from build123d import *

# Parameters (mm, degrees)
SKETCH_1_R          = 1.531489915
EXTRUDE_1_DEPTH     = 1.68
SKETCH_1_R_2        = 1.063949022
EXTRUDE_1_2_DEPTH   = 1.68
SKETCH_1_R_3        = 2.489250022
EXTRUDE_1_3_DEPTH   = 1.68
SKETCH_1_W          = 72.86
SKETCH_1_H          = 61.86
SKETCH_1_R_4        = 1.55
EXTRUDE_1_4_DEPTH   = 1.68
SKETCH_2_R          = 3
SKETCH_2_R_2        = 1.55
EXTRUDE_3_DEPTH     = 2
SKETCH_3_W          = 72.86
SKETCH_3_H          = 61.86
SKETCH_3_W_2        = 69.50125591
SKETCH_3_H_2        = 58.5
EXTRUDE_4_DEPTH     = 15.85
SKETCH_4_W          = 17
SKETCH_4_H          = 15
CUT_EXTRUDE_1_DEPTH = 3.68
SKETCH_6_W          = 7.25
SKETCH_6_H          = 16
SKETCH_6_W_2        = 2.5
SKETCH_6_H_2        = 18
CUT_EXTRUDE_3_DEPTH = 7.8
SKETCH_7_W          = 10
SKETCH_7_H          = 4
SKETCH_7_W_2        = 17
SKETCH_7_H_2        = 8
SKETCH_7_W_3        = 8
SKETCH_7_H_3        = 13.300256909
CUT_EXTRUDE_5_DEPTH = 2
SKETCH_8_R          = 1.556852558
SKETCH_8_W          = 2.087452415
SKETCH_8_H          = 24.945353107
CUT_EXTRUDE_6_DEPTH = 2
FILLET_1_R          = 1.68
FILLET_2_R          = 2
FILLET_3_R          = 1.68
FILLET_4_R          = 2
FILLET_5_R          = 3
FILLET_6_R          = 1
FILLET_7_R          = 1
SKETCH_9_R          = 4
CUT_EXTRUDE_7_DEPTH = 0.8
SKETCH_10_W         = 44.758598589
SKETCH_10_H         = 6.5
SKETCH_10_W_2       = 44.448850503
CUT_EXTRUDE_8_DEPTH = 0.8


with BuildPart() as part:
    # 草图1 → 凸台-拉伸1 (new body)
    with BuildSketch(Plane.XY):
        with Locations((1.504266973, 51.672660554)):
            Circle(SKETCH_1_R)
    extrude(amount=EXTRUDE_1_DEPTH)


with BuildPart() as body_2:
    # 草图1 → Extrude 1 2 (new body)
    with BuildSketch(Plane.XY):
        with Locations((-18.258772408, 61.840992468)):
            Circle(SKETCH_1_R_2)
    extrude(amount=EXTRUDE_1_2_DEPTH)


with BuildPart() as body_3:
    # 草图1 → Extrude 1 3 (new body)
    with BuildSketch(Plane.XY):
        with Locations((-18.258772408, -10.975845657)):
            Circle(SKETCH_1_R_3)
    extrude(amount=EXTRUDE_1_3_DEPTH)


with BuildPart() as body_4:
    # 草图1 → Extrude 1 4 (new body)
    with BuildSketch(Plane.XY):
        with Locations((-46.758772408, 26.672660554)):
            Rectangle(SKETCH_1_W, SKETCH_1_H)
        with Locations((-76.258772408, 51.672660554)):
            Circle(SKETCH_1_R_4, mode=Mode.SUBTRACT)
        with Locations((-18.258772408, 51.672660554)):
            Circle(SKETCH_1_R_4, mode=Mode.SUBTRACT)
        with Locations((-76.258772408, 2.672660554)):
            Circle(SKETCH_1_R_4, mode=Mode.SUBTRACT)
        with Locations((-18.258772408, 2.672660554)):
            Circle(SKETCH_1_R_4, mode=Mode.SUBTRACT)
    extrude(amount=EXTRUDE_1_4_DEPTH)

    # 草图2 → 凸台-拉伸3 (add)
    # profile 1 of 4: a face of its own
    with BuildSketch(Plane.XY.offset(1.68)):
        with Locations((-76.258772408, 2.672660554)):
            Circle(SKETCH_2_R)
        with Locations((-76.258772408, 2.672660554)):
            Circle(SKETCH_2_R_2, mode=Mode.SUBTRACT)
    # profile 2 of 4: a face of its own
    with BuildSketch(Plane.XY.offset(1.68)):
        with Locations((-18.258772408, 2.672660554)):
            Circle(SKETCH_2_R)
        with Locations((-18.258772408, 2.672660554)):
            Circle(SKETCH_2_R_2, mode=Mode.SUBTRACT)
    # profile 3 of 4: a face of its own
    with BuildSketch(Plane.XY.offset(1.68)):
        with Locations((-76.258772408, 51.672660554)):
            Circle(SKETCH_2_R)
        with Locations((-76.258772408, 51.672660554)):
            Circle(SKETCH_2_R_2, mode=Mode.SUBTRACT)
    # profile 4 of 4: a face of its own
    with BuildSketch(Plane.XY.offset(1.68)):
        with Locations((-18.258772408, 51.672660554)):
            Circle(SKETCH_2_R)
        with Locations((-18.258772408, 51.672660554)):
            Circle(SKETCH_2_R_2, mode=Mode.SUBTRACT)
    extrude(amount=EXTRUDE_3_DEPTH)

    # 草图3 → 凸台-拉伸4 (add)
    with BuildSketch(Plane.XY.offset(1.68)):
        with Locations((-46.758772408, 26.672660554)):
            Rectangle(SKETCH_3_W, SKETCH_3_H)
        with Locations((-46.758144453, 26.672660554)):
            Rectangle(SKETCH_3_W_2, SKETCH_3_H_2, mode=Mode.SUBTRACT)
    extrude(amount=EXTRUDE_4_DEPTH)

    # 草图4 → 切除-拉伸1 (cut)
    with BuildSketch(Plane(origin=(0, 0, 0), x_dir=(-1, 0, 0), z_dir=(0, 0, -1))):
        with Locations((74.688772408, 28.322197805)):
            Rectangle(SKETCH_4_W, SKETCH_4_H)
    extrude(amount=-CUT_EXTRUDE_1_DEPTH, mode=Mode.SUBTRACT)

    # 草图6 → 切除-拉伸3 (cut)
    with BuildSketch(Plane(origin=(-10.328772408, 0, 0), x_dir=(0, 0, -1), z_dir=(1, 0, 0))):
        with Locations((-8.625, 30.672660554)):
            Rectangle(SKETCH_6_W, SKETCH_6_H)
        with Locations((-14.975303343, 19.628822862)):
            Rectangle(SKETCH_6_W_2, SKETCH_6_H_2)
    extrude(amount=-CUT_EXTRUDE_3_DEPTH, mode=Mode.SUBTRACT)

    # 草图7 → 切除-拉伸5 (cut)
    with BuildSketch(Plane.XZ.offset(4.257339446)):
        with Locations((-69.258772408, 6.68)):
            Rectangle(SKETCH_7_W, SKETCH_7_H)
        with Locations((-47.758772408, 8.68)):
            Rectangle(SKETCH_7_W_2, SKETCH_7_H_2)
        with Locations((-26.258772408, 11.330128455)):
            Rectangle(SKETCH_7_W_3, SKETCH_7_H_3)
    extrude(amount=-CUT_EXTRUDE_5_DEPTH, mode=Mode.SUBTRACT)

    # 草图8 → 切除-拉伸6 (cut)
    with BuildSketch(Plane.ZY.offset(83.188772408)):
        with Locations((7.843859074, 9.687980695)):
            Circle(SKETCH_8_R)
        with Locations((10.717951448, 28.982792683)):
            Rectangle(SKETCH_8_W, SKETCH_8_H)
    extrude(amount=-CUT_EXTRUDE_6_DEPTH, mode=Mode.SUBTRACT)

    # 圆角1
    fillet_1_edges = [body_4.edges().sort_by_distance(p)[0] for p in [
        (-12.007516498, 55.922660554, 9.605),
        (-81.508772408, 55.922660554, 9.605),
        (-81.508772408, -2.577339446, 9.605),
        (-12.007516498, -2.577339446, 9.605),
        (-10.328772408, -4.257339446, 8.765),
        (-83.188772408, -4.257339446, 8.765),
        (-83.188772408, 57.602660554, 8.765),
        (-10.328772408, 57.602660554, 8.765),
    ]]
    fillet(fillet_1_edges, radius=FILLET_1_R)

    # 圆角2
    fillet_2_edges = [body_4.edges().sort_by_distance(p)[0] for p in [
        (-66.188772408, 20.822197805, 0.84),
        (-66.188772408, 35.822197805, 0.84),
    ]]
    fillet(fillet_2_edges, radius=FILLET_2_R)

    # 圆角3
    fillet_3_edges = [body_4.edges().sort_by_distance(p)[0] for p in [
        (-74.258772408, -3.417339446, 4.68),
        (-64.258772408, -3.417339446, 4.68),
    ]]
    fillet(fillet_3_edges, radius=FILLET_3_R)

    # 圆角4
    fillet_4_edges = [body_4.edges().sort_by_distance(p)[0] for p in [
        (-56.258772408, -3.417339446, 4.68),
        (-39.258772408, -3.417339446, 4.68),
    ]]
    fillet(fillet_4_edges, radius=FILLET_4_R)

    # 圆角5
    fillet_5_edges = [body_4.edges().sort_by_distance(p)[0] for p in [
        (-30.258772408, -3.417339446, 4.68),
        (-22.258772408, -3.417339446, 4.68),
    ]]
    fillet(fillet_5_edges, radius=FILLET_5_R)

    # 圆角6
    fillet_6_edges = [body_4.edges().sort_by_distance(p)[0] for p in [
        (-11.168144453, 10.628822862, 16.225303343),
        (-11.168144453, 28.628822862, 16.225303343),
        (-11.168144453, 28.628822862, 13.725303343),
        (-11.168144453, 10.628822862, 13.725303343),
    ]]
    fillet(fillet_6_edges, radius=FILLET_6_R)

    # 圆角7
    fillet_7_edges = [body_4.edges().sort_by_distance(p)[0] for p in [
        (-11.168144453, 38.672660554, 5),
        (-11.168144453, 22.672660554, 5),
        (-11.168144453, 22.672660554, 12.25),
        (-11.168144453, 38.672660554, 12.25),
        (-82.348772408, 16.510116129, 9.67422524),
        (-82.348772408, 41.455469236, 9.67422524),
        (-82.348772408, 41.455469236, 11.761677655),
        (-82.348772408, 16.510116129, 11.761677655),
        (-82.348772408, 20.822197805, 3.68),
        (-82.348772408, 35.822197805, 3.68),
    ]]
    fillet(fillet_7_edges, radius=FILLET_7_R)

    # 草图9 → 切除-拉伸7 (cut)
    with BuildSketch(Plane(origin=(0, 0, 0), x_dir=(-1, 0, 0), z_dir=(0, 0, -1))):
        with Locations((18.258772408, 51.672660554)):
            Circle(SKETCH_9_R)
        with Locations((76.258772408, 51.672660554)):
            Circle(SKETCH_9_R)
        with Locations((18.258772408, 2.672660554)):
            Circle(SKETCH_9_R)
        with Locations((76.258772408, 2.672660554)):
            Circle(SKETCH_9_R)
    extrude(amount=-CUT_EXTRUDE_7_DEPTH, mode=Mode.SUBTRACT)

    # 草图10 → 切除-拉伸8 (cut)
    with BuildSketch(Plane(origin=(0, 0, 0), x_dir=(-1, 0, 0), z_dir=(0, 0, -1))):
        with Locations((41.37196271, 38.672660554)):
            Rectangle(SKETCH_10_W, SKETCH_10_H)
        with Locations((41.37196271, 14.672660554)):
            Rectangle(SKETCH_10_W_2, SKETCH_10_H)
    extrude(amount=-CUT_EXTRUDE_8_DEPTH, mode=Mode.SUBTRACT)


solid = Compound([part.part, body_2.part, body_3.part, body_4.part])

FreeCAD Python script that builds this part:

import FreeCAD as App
import Part
import Sketcher
from FreeCAD import Vector
Q = App.Units.Quantity


def edges_at(feature, points):
    """Names of the edges that pass closest to the given points."""
    edges = feature.Shape.Edges
    near = lambda p: min(range(len(edges)), key=lambda i: edges[i].distToShape(Part.Vertex(*p))[0])
    return sorted({f"Edge{near(p) + 1}" for p in points})

doc = App.newDocument("Part")
body = doc.addObject("PartDesign::Body", "Body")

sketch1 = body.newObject("Sketcher::SketchObject", "Sketch")
sketch1.AttachmentSupport = (doc.getObject("XY_Plane"), [""])
sketch1.MapMode = "FlatFace"
sketch1.addGeometry(Part.Circle(Vector(1.504267, 51.672661, 0), Vector(0, 0, 1), 1.53149), False)
sketch1.addConstraint([
    Sketcher.Constraint("Diameter", 0, Q("3.06298 mm")),
    Sketcher.Constraint("DistanceY", -1, 1, 0, 3, Q("51.672661 mm")),
    Sketcher.Constraint("DistanceX", -1, 1, 0, 3, Q("1.504267 mm")),
])
pad1 = body.newObject("PartDesign::Pad", "Pad")
pad1.Profile = sketch1
pad1.Length = 1.68
body2 = doc.addObject("PartDesign::Body", "Body001")

sketch2 = body2.newObject("Sketcher::SketchObject", "Sketch001")
sketch2.AttachmentSupport = (doc.getObject("XY_Plane001"), [""])
sketch2.MapMode = "FlatFace"
sketch2.addGeometry(Part.Circle(Vector(-18.258772, 61.840992, 0), Vector(0, 0, 1), 1.063949), False)
sketch2.addConstraint([
    Sketcher.Constraint("Diameter", 0, Q("2.127898 mm")),
    Sketcher.Constraint("DistanceX", 0, 3, -1, 1, Q("18.258772 mm")),
    Sketcher.Constraint("DistanceY", -1, 1, 0, 3, Q("61.840992 mm")),
])
pad2 = body2.newObject("PartDesign::Pad", "Pad001")
pad2.Profile = sketch2
pad2.Length = 1.68
body3 = doc.addObject("PartDesign::Body", "Body002")

sketch3 = body3.newObject("Sketcher::SketchObject", "Sketch002")
sketch3.AttachmentSupport = (doc.getObject("XY_Plane002"), [""])
sketch3.MapMode = "FlatFace"
sketch3.addGeometry(Part.Circle(Vector(-18.258772, -10.975846, 0), Vector(0, 0, 1), 2.48925), False)
sketch3.addConstraint([
    Sketcher.Constraint("Diameter", 0, Q("4.9785 mm")),
    Sketcher.Constraint("DistanceX", 0, 3, -1, 1, Q("18.258772 mm")),
    Sketcher.Constraint("DistanceY", 0, 3, -1, 1, Q("10.975846 mm")),
])
pad3 = body3.newObject("PartDesign::Pad", "Pad002")
pad3.Profile = sketch3
pad3.Length = 1.68
body4 = doc.addObject("PartDesign::Body", "Body003")

sketch4 = body4.newObject("Sketcher::SketchObject", "Sketch003")
sketch4.AttachmentSupport = (doc.getObject("XY_Plane003"), [""])
sketch4.MapMode = "FlatFace"
sketch4.addGeometry([
    Part.LineSegment(Vector(-83.188772, 57.602661, 0), Vector(-83.188772, -4.257339, 0)),
    Part.LineSegment(Vector(-83.188772, -4.257339, 0), Vector(-10.328772, -4.257339, 0)),
    Part.LineSegment(Vector(-10.328772, -4.257339, 0), Vector(-10.328772, 57.602661, 0)),
    Part.LineSegment(Vector(-10.328772, 57.602661, 0), Vector(-83.188772, 57.602661, 0)),
    Part.Circle(Vector(-76.258772, 2.672661, 0), Vector(0, 0, 1), 1.55),
    Part.Circle(Vector(-18.258772, 2.672661, 0), Vector(0, 0, 1), 1.55),
    Part.Circle(Vector(-76.258772, 51.672661, 0), Vector(0, 0, 1), 1.55),
    Part.Circle(Vector(-18.258772, 51.672661, 0), Vector(0, 0, 1), 1.55),
], False)
sketch4.addConstraint([
    Sketcher.Constraint("Coincident", 0, 2, 1, 1),
    Sketcher.Constraint("Coincident", 1, 2, 2, 1),
    Sketcher.Constraint("Coincident", 2, 2, 3, 1),
    Sketcher.Constraint("Coincident", 3, 2, 0, 1),
    Sketcher.Constraint("Vertical", 0),
    Sketcher.Constraint("Horizontal", 1),
    Sketcher.Constraint("Vertical", 2),
    Sketcher.Constraint("Horizontal", 3),
    Sketcher.Constraint("Equal", 4, 5),
    Sketcher.Constraint("Equal", 5, 6),
    Sketcher.Constraint("Equal", 6, 7),
    Sketcher.Constraint("Horizontal", 4, 3, 5, 3),
    Sketcher.Constraint("Horizontal", 6, 3, 7, 3),
    Sketcher.Constraint("Vertical", 4, 3, 6, 3),
    Sketcher.Constraint("Vertical", 5, 3, 7, 3),
    Sketcher.Constraint("Diameter", 4, Q("3.1 mm")),
    Sketcher.Constraint("DistanceX", 4, 3, 5, 3, Q("58 mm")),
    Sketcher.Constraint("DistanceY", 4, 3, 6, 3, Q("49 mm")),
    Sketcher.Constraint("DistanceX", 1, 1, 1, 2, Q("72.86 mm")),
    Sketcher.Constraint("DistanceY", 0, 2, 0, 1, Q("61.86 mm")),
    Sketcher.Constraint("DistanceX", 0, 2, 4, 3, Q("6.93 mm")),
    Sketcher.Constraint("DistanceY", 0, 2, 4, 3, Q("6.93 mm")),
    Sketcher.Constraint("DistanceY", -1, 1, 4, 3, Q("2.672661 mm")),
    Sketcher.Constraint("DistanceX", 4, 3, -1, 1, Q("76.258772 mm")),
])
pad4 = body4.newObject("PartDesign::Pad", "Pad003")
pad4.Profile = sketch4
pad4.Length = 1.68

sketch5 = body4.newObject("Sketcher::SketchObject", "Sketch004")
sketch5.AttachmentSupport = (doc.getObject("XY_Plane003"), [""])
sketch5.MapMode = "FlatFace"
sketch5.AttachmentOffset = App.Placement(Vector(0, 0, 1.68), App.Rotation())
sketch5.addGeometry([
    Part.Circle(Vector(-76.258772, 2.672661, 0), Vector(0, 0, 1), 3),
    Part.Circle(Vector(-76.258772, 2.672661, 0), Vector(0, 0, 1), 1.55),
    Part.Circle(Vector(-18.258772, 2.672661, 0), Vector(0, 0, 1), 3),
    Part.Circle(Vector(-18.258772, 2.672661, 0), Vector(0, 0, 1), 1.55),
    Part.Circle(Vector(-76.258772, 51.672661, 0), Vector(0, 0, 1), 3),
    Part.Circle(Vector(-76.258772, 51.672661, 0), Vector(0, 0, 1), 1.55),
    Part.Circle(Vector(-18.258772, 51.672661, 0), Vector(0, 0, 1), 3),
    Part.Circle(Vector(-18.258772, 51.672661, 0), Vector(0, 0, 1), 1.55),
], False)
sketch5.addConstraint([
    Sketcher.Constraint("Coincident", 1, 3, 0, 3),
    Sketcher.Constraint("Coincident", 3, 3, 2, 3),
    Sketcher.Constraint("Coincident", 5, 3, 4, 3),
    Sketcher.Constraint("Coincident", 7, 3, 6, 3),
    Sketcher.Constraint("Equal", 0, 2),
    Sketcher.Constraint("Equal", 1, 3),
    Sketcher.Constraint("Equal", 2, 4),
    Sketcher.Constraint("Equal", 3, 5),
    Sketcher.Constraint("Equal", 4, 6),
    Sketcher.Constraint("Equal", 5, 7),
    Sketcher.Constraint("Horizontal", 1, 3, 2, 3),
    Sketcher.Constraint("Horizontal", 5, 3, 6, 3),
    Sketcher.Constraint("Vertical", 1, 3, 4, 3),
    Sketcher.Constraint("Vertical", 3, 3, 6, 3),
    Sketcher.Constraint("Diameter", 0, Q("6 mm")),
    Sketcher.Constraint("Diameter", 1, Q("3.1 mm")),
    Sketcher.Constraint("DistanceX", 0, 3, 2, 3, Q("58 mm")),
    Sketcher.Constraint("DistanceY", 0, 3, 4, 3, Q("49 mm")),
    Sketcher.Constraint("DistanceY", -1, 1, 0, 3, Q("2.672661 mm")),
    Sketcher.Constraint("DistanceX", 0, 3, -1, 1, Q("76.258772 mm")),
])
pad5 = body4.newObject("PartDesign::Pad", "Pad004")
pad5.Profile = sketch5
pad5.Length = 2

sketch6 = body4.newObject("Sketcher::SketchObject", "Sketch005")
sketch6.AttachmentSupport = (doc.getObject("XY_Plane003"), [""])
sketch6.MapMode = "FlatFace"
sketch6.AttachmentOffset = App.Placement(Vector(0, 0, 1.68), App.Rotation())
sketch6.addGeometry([
    Part.LineSegment(Vector(-83.188772, 57.602661, 0), Vector(-83.188772, -4.257339, 0)),
    Part.LineSegment(Vector(-83.188772, -4.257339, 0), Vector(-10.328772, -4.257339, 0)),
    Part.LineSegment(Vector(-10.328772, -4.257339, 0), Vector(-10.328772, 57.602661, 0)),
    Part.LineSegment(Vector(-10.328772, 57.602661, 0), Vector(-83.188772, 57.602661, 0)),
    Part.LineSegment(Vector(-12.007516, -2.577339, 0), Vector(-81.508772, -2.577339, 0)),
    Part.LineSegment(Vector(-81.508772, -2.577339, 0), Vector(-81.508772, 55.922661, 0)),
    Part.LineSegment(Vector(-81.508772, 55.922661, 0), Vector(-12.007516, 55.922661, 0)),
    Part.LineSegment(Vector(-12.007516, 55.922661, 0), Vector(-12.007516, -2.577339, 0)),
], False)
sketch6.addConstraint([
    Sketcher.Constraint("Coincident", 0, 2, 1, 1),
    Sketcher.Constraint("Coincident", 1, 2, 2, 1),
    Sketcher.Constraint("Coincident", 2, 2, 3, 1),
    Sketcher.Constraint("Coincident", 3, 2, 0, 1),
    Sketcher.Constraint("Coincident", 4, 2, 5, 1),
    Sketcher.Constraint("Coincident", 5, 2, 6, 1),
    Sketcher.Constraint("Coincident", 6, 2, 7, 1),
    Sketcher.Constraint("Coincident", 7, 2, 4, 1),
    Sketcher.Constraint("Vertical", 0),
    Sketcher.Constraint("Horizontal", 1),
    Sketcher.Constraint("Vertical", 2),
    Sketcher.Constraint("Horizontal", 3),
    Sketcher.Constraint("Horizontal", 4),
    Sketcher.Constraint("Vertical", 5),
    Sketcher.Constraint("Horizontal", 6),
    Sketcher.Constraint("Vertical", 7),
    Sketcher.Constraint("DistanceY", 5, 1, 5, 2, Q("58.5 mm")),
    Sketcher.Constraint("DistanceX", 1, 1, 1, 2, Q("72.86 mm")),
    Sketcher.Constraint("DistanceY", 0, 2, 0, 1, Q("61.86 mm")),
    Sketcher.Constraint("DistanceX", 0, 2, 4, 2, Q("1.68 mm")),
    Sketcher.Constraint("DistanceY", 0, 2, 4, 2, Q("1.68 mm")),
    Sketcher.Constraint("DistanceX", 4, 2, 4, 1, Q("69.501256 mm")),
    Sketcher.Constraint("DistanceY", 0, 2, -1, 1, Q("4.257339 mm")),
    Sketcher.Constraint("DistanceX", 0, 2, -1, 1, Q("83.188772 mm")),
])
pad6 = body4.newObject("PartDesign::Pad", "Pad005")
pad6.Profile = sketch6
pad6.Length = 15.85

sketch7 = body4.newObject("Sketcher::SketchObject", "Sketch006")
sketch7.AttachmentSupport = (doc.getObject("XY_Plane003"), [""])
sketch7.MapMode = "FlatFace"
sketch7.addGeometry([
    Part.LineSegment(Vector(-66.188772, 35.822198, 0), Vector(-66.188772, 20.822198, 0)),
    Part.LineSegment(Vector(-66.188772, 20.822198, 0), Vector(-83.188772, 20.822198, 0)),
    Part.LineSegment(Vector(-83.188772, 20.822198, 0), Vector(-83.188772, 35.822198, 0)),
    Part.LineSegment(Vector(-83.188772, 35.822198, 0), Vector(-66.188772, 35.822198, 0)),
], False)
sketch7.addConstraint([
    Sketcher.Constraint("Coincident", 0, 2, 1, 1),
    Sketcher.Constraint("Coincident", 1, 2, 2, 1),
    Sketcher.Constraint("Coincident", 2, 2, 3, 1),
    Sketcher.Constraint("Coincident", 3, 2, 0, 1),
    Sketcher.Constraint("Vertical", 0),
    Sketcher.Constraint("Horizontal", 1),
    Sketcher.Constraint("Vertical", 2),
    Sketcher.Constraint("Horizontal", 3),
    Sketcher.Constraint("DistanceX", 1, 2, 1, 1, Q("17 mm")),
    Sketcher.Constraint("DistanceY", 0, 2, 0, 1, Q("15 mm")),
    Sketcher.Constraint("DistanceX", 0, 2, -1, 1, Q("66.188772 mm")),
    Sketcher.Constraint("DistanceY", -1, 1, 0, 2, Q("20.822198 mm")),
])
pocket1 = body4.newObject("PartDesign::Pocket", "Pocket")
pocket1.Profile = sketch7
pocket1.Length = 3.68
pocket1.Reversed = True

sketch8 = body4.newObject("Sketcher::SketchObject", "Sketch007")
sketch8.AttachmentSupport = (doc.getObject("YZ_Plane003"), [""])
sketch8.MapMode = "FlatFace"
sketch8.AttachmentOffset = App.Placement(Vector(0, 0, -10.328772), App.Rotation())
sketch8.addGeometry([
    Part.LineSegment(Vector(38.672661, 12.25, 0), Vector(22.672661, 12.25, 0)),
    Part.LineSegment(Vector(22.672661, 12.25, 0), Vector(22.672661, 5, 0)),
    Part.LineSegment(Vector(22.672661, 5, 0), Vector(38.672661, 5, 0)),
    Part.LineSegment(Vector(38.672661, 5, 0), Vector(38.672661, 12.25, 0)),
    Part.LineSegment(Vector(28.628823, 16.225303, 0), Vector(10.628823, 16.225303, 0)),
    Part.LineSegment(Vector(10.628823, 16.225303, 0), Vector(10.628823, 13.725303, 0)),
    Part.LineSegment(Vector(10.628823, 13.725303, 0), Vector(28.628823, 13.725303, 0)),
    Part.LineSegment(Vector(28.628823, 13.725303, 0), Vector(28.628823, 16.225303, 0)),
], False)
sketch8.addConstraint([
    Sketcher.Constraint("Coincident", 0, 2, 1, 1),
    Sketcher.Constraint("Coincident", 1, 2, 2, 1),
    Sketcher.Constraint("Coincident", 2, 2, 3, 1),
    Sketcher.Constraint("Coincident", 3, 2, 0, 1),
    Sketcher.Constraint("Coincident", 4, 2, 5, 1),
    Sketcher.Constraint("Coincident", 5, 2, 6, 1),
    Sketcher.Constraint("Coincident", 6, 2, 7, 1),
    Sketcher.Constraint("Coincident", 7, 2, 4, 1),
    Sketcher.Constraint("Horizontal", 0),
    Sketcher.Constraint("Vertical", 1),
    Sketcher.Constraint("Horizontal", 2),
    Sketcher.Constraint("Vertical", 3),
    Sketcher.Constraint("Horizontal", 4),
    Sketcher.Constraint("Vertical", 5),
    Sketcher.Constraint("Horizontal", 6),
    Sketcher.Constraint("Vertical", 7),
    Sketcher.Constraint("DistanceX", 0, 2, 0, 1, Q("16 mm")),
    Sketcher.Constraint("DistanceX", 4, 2, 4, 1, Q("18 mm")),
    Sketcher.Constraint("DistanceY", 5, 2, 5, 1, Q("2.5 mm")),
    Sketcher.Constraint("DistanceY", -1, 1, 1, 2, Q("5 mm")),
    Sketcher.Constraint("DistanceY", 1, 2, 1, 1, Q("7.25 mm")),
    Sketcher.Constraint("DistanceX", -1, 1, 0, 2, Q("22.672661 mm")),
    Sketcher.Constraint("DistanceX", -1, 1, 4, 2, Q("10.628823 mm")),
    Sketcher.Constraint("DistanceY", -1, 1, 4, 2, Q("16.225303 mm")),
])
pocket2 = body4.newObject("PartDesign::Pocket", "Pocket001")
pocket2.Profile = sketch8
pocket2.Length = 7.8

sketch9 = body4.newObject("Sketcher::SketchObject", "Sketch008")
sketch9.AttachmentSupport = (doc.getObject("XZ_Plane003"), [""])
sketch9.MapMode = "FlatFace"
sketch9.AttachmentOffset = App.Placement(Vector(0, 0, 4.257339), App.Rotation())
sketch9.addGeometry([
    Part.LineSegment(Vector(-74.258772, 8.68, 0), Vector(-74.258772, 4.68, 0)),
    Part.LineSegment(Vector(-74.258772, 4.68, 0), Vector(-64.258772, 4.68, 0)),
    Part.LineSegment(Vector(-64.258772, 4.68, 0), Vector(-64.258772, 8.68, 0)),
    Part.LineSegment(Vector(-64.258772, 8.68, 0), Vector(-74.258772, 8.68, 0)),
    Part.LineSegment(Vector(-56.258772, 12.68, 0), Vector(-56.258772, 4.68, 0)),
    Part.LineSegment(Vector(-56.258772, 4.68, 0), Vector(-39.258772, 4.68, 0)),
    Part.LineSegment(Vector(-39.258772, 4.68, 0), Vector(-39.258772, 12.68, 0)),
    Part.LineSegment(Vector(-39.258772, 12.68, 0), Vector(-56.258772, 12.68, 0)),
    Part.LineSegment(Vector(-30.258772, 17.980257, 0), Vector(-30.258772, 4.68, 0)),
    Part.LineSegment(Vector(-30.258772, 4.68, 0), Vector(-22.258772, 4.68, 0)),
    Part.LineSegment(Vector(-22.258772, 4.68, 0), Vector(-22.258772, 17.980257, 0)),
    Part.LineSegment(Vector(-22.258772, 17.980257, 0), Vector(-30.258772, 17.980257, 0)),
], False)
sketch9.addConstraint([
    Sketcher.Constraint("Coincident", 0, 2, 1, 1),
    Sketcher.Constraint("Coincident", 1, 2, 2, 1),
    Sketcher.Constraint("Coincident", 2, 2, 3, 1),
    Sketcher.Constraint("Coincident", 3, 2, 0, 1),
    Sketcher.Constraint("Coincident", 4, 2, 5, 1),
    Sketcher.Constraint("Coincident", 5, 2, 6, 1),
    Sketcher.Constraint("Coincident", 6, 2, 7, 1),
    Sketcher.Constraint("Coincident", 7, 2, 4, 1),
    Sketcher.Constraint("Coincident", 8, 2, 9, 1),
    Sketcher.Constraint("Coincident", 9, 2, 10, 1),
    Sketcher.Constraint("Coincident", 10, 2, 11, 1),
    Sketcher.Constraint("Coincident", 11, 2, 8, 1),
    Sketcher.Constraint("Vertical", 0),
    Sketcher.Constraint("Horizontal", 1),
    Sketcher.Constraint("Vertical", 2),
    Sketcher.Constraint("Horizontal", 3),
    Sketcher.Constraint("Vertical", 4),
    Sketcher.Constraint("Horizontal", 5),
    Sketcher.Constraint("Vertical", 6),
    Sketcher.Constraint("Horizontal", 7),
    Sketcher.Constraint("Vertical", 8),
    Sketcher.Constraint("Horizontal", 9),
    Sketcher.Constraint("Vertical", 10),
    Sketcher.Constraint("Horizontal", 11),
    Sketcher.Constraint("Horizontal", 1, 2, 4, 2),
    Sketcher.Constraint("Horizontal", 5, 2, 8, 2),
    Sketcher.Constraint("Equal", 11, 4),
    Sketcher.Constraint("DistanceX", 1, 1, 1, 2, Q("10 mm")),
    Sketcher.Constraint("DistanceX", 5, 1, 5, 2, Q("17 mm")),
    Sketcher.Constraint("DistanceX", 9, 1, 9, 2, Q("8 mm")),
    Sketcher.Constraint("DistanceY", 0, 2, 0, 1, Q("4 mm")),
    Sketcher.Constraint("DistanceX", 1, 2, 4, 2, Q("8 mm")),
    Sketcher.Constraint("DistanceX", 5, 2, 8, 2, Q("9 mm")),
    Sketcher.Constraint("DistanceY", -1, 1, 0, 2, Q("4.68 mm")),
    Sketcher.Constraint("DistanceY", 8, 2, 8, 1, Q("13.300257 mm")),
    Sketcher.Constraint("DistanceX", 0, 2, -1, 1, Q("74.258772 mm")),
])
pocket3 = body4.newObject("PartDesign::Pocket", "Pocket002")
pocket3.Profile = sketch9
pocket3.Length = 2

sketch10 = body4.newObject("Sketcher::SketchObject", "Sketch009")
sketch10.AttachmentSupport = (doc.getObject("YZ_Plane003"), [""])
sketch10.MapMode = "FlatFace"
sketch10.AttachmentOffset = App.Placement(Vector(0, 0, -83.188772), App.Rotation())
sketch10.addGeometry([
    Part.Circle(Vector(9.687981, 7.843859, 0), Vector(0, 0, 1), 1.556853),
    Part.LineSegment(Vector(41.455469, 9.674225, 0), Vector(16.510116, 9.674225, 0)),
    Part.LineSegment(Vector(16.510116, 9.674225, 0), Vector(16.510116, 11.761678, 0)),
    Part.LineSegment(Vector(16.510116, 11.761678, 0), Vector(41.455469, 11.761678, 0)),
    Part.LineSegment(Vector(41.455469, 11.761678, 0), Vector(41.455469, 9.674225, 0)),
], False)
sketch10.addConstraint([
    Sketcher.Constraint("Coincident", 1, 2, 2, 1),
    Sketcher.Constraint("Coincident", 2, 2, 3, 1),
    Sketcher.Constraint("Coincident", 3, 2, 4, 1),
    Sketcher.Constraint("Coincident", 4, 2, 1, 1),
    Sketcher.Constraint("Horizontal", 1),
    Sketcher.Constraint("Vertical", 2),
    Sketcher.Constraint("Horizontal", 3),
    Sketcher.Constraint("Vertical", 4),
    Sketcher.Constraint("Diameter", 0, Q("3.113705 mm")),
    Sketcher.Constraint("DistanceX", 1, 2, 1, 1, Q("24.945353 mm")),
    Sketcher.Constraint("DistanceY", 2, 1, 2, 2, Q("2.087452 mm")),
    Sketcher.Constraint("DistanceX", -1, 1, 0, 3, Q("9.687981 mm")),
    Sketcher.Constraint("DistanceY", -1, 1, 0, 3, Q("7.843859 mm")),
    Sketcher.Constraint("DistanceX", -1, 1, 3, 2, Q("41.455469 mm")),
    Sketcher.Constraint("DistanceY", 0, 3, 2, 2, Q("3.917819 mm")),
])
pocket4 = body4.newObject("PartDesign::Pocket", "Pocket003")
pocket4.Profile = sketch10
pocket4.Length = 2
pocket4.Reversed = True
doc.recompute()

fillet = body4.newObject("PartDesign::Fillet", "Fillet")
fillet.Base = (pocket4, edges_at(pocket4, [
    (-12.008, 55.923, 9.605),
    (-81.509, 55.923, 9.605),
    (-81.509, -2.577, 9.605),
    (-12.008, -2.577, 9.605),
    (-10.329, -4.257, 8.765),
    (-83.189, -4.257, 8.765),
    (-83.189, 57.603, 8.765),
    (-10.329, 57.603, 8.765),
]))
fillet.Radius = 1.68
doc.recompute()

fillet2 = body4.newObject("PartDesign::Fillet", "Fillet001")
fillet2.Base = (fillet, edges_at(fillet, [(-66.189, 20.822, 0.84), (-66.189, 35.822, 0.84)]))
fillet2.Radius = 2
doc.recompute()

fillet3 = body4.newObject("PartDesign::Fillet", "Fillet002")
fillet3.Base = (fillet2, edges_at(fillet2, [(-74.259, -3.417, 4.68), (-64.259, -3.417, 4.68)]))
fillet3.Radius = 1.68
doc.recompute()

fillet4 = body4.newObject("PartDesign::Fillet", "Fillet003")
fillet4.Base = (fillet3, edges_at(fillet3, [(-56.259, -3.417, 4.68), (-39.259, -3.417, 4.68)]))
fillet4.Radius = 2
doc.recompute()

fillet5 = body4.newObject("PartDesign::Fillet", "Fillet004")
fillet5.Base = (fillet4, edges_at(fillet4, [(-30.259, -3.417, 4.68), (-22.259, -3.417, 4.68)]))
fillet5.Radius = 3
doc.recompute()

fillet6 = body4.newObject("PartDesign::Fillet", "Fillet005")
fillet6.Base = (fillet5, edges_at(fillet5, [
    (-11.168, 10.629, 16.225),
    (-11.168, 28.629, 16.225),
    (-11.168, 28.629, 13.725),
    (-11.168, 10.629, 13.725),
]))
fillet6.Radius = 1
doc.recompute()

fillet7 = body4.newObject("PartDesign::Fillet", "Fillet006")
fillet7.Base = (fillet6, edges_at(fillet6, [
    (-11.168, 38.673, 5),
    (-11.168, 22.673, 5),
    (-11.168, 22.673, 12.25),
    (-11.168, 38.673, 12.25),
    (-82.349, 16.51, 9.674),
    (-82.349, 41.455, 9.674),
    (-82.349, 41.455, 11.762),
    (-82.349, 16.51, 11.762),
    (-82.349, 20.822, 3.68),
    (-82.349, 35.822, 3.68),
]))
fillet7.Radius = 1

sketch11 = body4.newObject("Sketcher::SketchObject", "Sketch010")
sketch11.AttachmentSupport = (doc.getObject("XY_Plane003"), [""])
sketch11.MapMode = "FlatFace"
sketch11.addGeometry([
    Part.Circle(Vector(-18.258772, 51.672661, 0), Vector(0, 0, 1), 4),
    Part.Circle(Vector(-76.258772, 51.672661, 0), Vector(0, 0, 1), 4),
    Part.Circle(Vector(-18.258772, 2.672661, 0), Vector(0, 0, 1), 4),
    Part.Circle(Vector(-76.258772, 2.672661, 0), Vector(0, 0, 1), 4),
], False)
sketch11.addConstraint([
    Sketcher.Constraint("Equal", 0, 1),
    Sketcher.Constraint("Equal", 1, 2),
    Sketcher.Constraint("Equal", 2, 3),
    Sketcher.Constraint("Horizontal", 0, 3, 1, 3),
    Sketcher.Constraint("Horizontal", 2, 3, 3, 3),
    Sketcher.Constraint("Vertical", 0, 3, 2, 3),
    Sketcher.Constraint("Vertical", 1, 3, 3, 3),
    Sketcher.Constraint("Diameter", 0, Q("8 mm")),
    Sketcher.Constraint("DistanceX", 1, 3, 0, 3, Q("58 mm")),
    Sketcher.Constraint("DistanceY", 2, 3, 0, 3, Q("49 mm")),
    Sketcher.Constraint("DistanceY", -1, 1, 0, 3, Q("51.672661 mm")),
    Sketcher.Constraint("DistanceX", 0, 3, -1, 1, Q("18.258772 mm")),
])
pocket5 = body4.newObject("PartDesign::Pocket", "Pocket004")
pocket5.Profile = sketch11
pocket5.Length = 0.8
pocket5.Reversed = True

sketch12 = body4.newObject("Sketcher::SketchObject", "Sketch011")
sketch12.AttachmentSupport = (doc.getObject("XY_Plane003"), [""])
sketch12.MapMode = "FlatFace"
sketch12.addGeometry([
    Part.LineSegment(Vector(-18.992663, 41.922661, 0), Vector(-18.992663, 35.422661, 0)),
    Part.LineSegment(Vector(-18.992663, 35.422661, 0), Vector(-63.751262, 35.422661, 0)),
    Part.LineSegment(Vector(-63.751262, 35.422661, 0), Vector(-63.751262, 41.922661, 0)),
    Part.LineSegment(Vector(-63.751262, 41.922661, 0), Vector(-18.992663, 41.922661, 0)),
    Part.LineSegment(Vector(-19.147537, 17.922661, 0), Vector(-19.147537, 11.422661, 0)),
    Part.LineSegment(Vector(-19.147537, 11.422661, 0), Vector(-63.596388, 11.422661, 0)),
    Part.LineSegment(Vector(-63.596388, 11.422661, 0), Vector(-63.596388, 17.922661, 0)),
    Part.LineSegment(Vector(-63.596388, 17.922661, 0), Vector(-19.147537, 17.922661, 0)),
], False)
sketch12.addConstraint([
    Sketcher.Constraint("Coincident", 0, 2, 1, 1),
    Sketcher.Constraint("Coincident", 1, 2, 2, 1),
    Sketcher.Constraint("Coincident", 2, 2, 3, 1),
    Sketcher.Constraint("Coincident", 3, 2, 0, 1),
    Sketcher.Constraint("Coincident", 4, 2, 5, 1),
    Sketcher.Constraint("Coincident", 5, 2, 6, 1),
    Sketcher.Constraint("Coincident", 6, 2, 7, 1),
    Sketcher.Constraint("Coincident", 7, 2, 4, 1),
    Sketcher.Constraint("Vertical", 0),
    Sketcher.Constraint("Horizontal", 1),
    Sketcher.Constraint("Vertical", 2),
    Sketcher.Constraint("Horizontal", 3),
    Sketcher.Constraint("Vertical", 4),
    Sketcher.Constraint("Horizontal", 5),
    Sketcher.Constraint("Vertical", 6),
    Sketcher.Constraint("Horizontal", 7),
    Sketcher.Constraint("Equal", 2, 4),
    Sketcher.Constraint("DistanceY", 0, 2, 0, 1, Q("6.5 mm")),
    Sketcher.Constraint("DistanceY", 4, 2, 0, 2, Q("24 mm")),
    Sketcher.Constraint("DistanceX", 1, 2, 1, 1, Q("44.758599 mm")),
    Sketcher.Constraint("DistanceX", 5, 2, 5, 1, Q("44.448851 mm")),
    Sketcher.Constraint("DistanceY", -1, 1, 0, 2, Q("35.422661 mm")),
    Sketcher.Constraint("DistanceX", 0, 2, -1, 1, Q("18.992663 mm")),
    Sketcher.Constraint("DistanceX", 4, 2, -1, 1, Q("19.147537 mm")),
])
pocket6 = body4.newObject("PartDesign::Pocket", "Pocket005")
pocket6.Profile = sketch12
pocket6.Length = 0.8
pocket6.Reversed = True

doc.recompute()
